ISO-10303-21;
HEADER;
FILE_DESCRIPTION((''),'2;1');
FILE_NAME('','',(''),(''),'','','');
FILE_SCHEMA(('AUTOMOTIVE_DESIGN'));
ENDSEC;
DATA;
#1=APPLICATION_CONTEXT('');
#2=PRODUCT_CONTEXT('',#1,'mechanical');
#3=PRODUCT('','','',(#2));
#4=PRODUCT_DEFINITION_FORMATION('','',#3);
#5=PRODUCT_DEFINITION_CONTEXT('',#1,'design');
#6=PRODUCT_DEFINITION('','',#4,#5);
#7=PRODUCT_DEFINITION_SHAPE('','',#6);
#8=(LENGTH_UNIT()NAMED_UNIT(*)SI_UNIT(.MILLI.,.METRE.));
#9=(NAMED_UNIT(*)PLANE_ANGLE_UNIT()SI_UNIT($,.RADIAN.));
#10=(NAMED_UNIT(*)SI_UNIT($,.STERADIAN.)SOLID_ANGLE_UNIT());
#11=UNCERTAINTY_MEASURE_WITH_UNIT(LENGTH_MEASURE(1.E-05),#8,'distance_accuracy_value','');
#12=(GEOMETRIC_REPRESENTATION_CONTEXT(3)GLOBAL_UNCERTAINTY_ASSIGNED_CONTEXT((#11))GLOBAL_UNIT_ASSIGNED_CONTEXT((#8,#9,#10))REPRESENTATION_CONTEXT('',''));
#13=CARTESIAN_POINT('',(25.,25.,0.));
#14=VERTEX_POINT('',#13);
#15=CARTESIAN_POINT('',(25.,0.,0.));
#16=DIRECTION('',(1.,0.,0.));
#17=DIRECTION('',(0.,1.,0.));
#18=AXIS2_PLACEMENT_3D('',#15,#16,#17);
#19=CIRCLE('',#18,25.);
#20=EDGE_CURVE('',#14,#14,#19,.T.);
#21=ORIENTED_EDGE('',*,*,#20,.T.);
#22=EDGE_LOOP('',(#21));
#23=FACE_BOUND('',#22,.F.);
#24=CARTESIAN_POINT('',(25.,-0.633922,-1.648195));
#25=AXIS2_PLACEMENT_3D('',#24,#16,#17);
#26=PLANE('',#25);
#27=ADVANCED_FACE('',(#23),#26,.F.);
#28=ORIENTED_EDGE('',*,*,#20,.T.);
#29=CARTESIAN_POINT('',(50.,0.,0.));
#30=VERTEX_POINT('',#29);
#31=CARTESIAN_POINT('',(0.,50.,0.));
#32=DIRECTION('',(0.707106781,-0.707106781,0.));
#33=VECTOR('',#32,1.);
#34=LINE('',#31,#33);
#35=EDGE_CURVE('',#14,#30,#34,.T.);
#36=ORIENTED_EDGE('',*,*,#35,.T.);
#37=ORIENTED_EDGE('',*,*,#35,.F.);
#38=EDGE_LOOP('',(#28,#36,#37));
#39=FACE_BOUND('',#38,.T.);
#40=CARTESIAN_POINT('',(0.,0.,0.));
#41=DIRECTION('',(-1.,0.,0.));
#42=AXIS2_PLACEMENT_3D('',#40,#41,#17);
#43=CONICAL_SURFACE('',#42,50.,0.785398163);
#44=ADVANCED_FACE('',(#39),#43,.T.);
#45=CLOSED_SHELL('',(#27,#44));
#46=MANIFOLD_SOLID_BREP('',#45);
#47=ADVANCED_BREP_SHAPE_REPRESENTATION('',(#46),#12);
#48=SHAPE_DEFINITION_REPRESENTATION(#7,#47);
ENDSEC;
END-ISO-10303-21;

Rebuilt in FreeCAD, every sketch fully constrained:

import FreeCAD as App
import Part
import Sketcher
Q = App.Units.Quantity


def add_polygon(sketch, points):
    """Adds a closed chain of lines whose ends are joined by coincident constraints."""
    first, n = sketch.GeometryCount, len(points)
    for a, b in zip(points, points[1:] + points[:1]):
        sketch.addGeometry(Part.LineSegment(App.Vector(*a, 0), App.Vector(*b, 0)), False)
    for i in range(n):
        sketch.addConstraint(Sketcher.Constraint("Coincident", first + i, 2, first + (i + 1) % n, 1))

doc = App.newDocument("Part")
body = doc.addObject("PartDesign::Body", "Body")

sketch1 = body.newObject("Sketcher::SketchObject", "Sketch")
sketch1.AttachmentSupport = (doc.getObject("YZ_Plane"), [""])
sketch1.MapMode = "FlatFace"
add_polygon(sketch1, [(-71.760032, 58.320873), (-71.760032, -61.617263), (70.492188, -61.617263), (70.492188, 58.320873)])
sketch1.addConstraint(Sketcher.Constraint("Vertical", 0))
sketch1.addConstraint(Sketcher.Constraint("Horizontal", 1))
sketch1.addConstraint(Sketcher.Constraint("Vertical", 2))
sketch1.addConstraint(Sketcher.Constraint("Horizontal", 3))
sketch1.addConstraint(Sketcher.Constraint("DistanceX", 1, 1, 1, 2, Q("142.252221 mm")))
sketch1.addConstraint(Sketcher.Constraint("DistanceY", 0, 2, 0, 1, Q("119.938137 mm")))
sketch1.addConstraint(Sketcher.Constraint("DistanceX", -1, 1, 1, 2, Q("70.492188 mm")))
sketch1.addConstraint(Sketcher.Constraint("DistanceY", 0, 2, -1, 1, Q("61.617263 mm")))
pad1 = body.newObject("PartDesign::Pad", "Pad")
pad1.Profile = sketch1
pad1.Length = 25
body2 = doc.addObject("PartDesign::Body", "Body001")

sketch2 = body2.newObject("Sketcher::SketchObject", "Sketch001")
sketch2.AttachmentSupport = (doc.getObject("XY_Plane001"), [""])
sketch2.MapMode = "FlatFace"
add_polygon(sketch2, [(0, 50), (0, 0), (50, 0)])
sketch2.addConstraint(Sketcher.Constraint("Vertical", 0))
sketch2.addConstraint(Sketcher.Constraint("Horizontal", 1))
sketch2.addConstraint(Sketcher.Constraint("Coincident", 0, 2, -1, 1))
sketch2.addConstraint(Sketcher.Constraint("Equal", 1, 0))
sketch2.addConstraint(Sketcher.Constraint("DistanceX", 1, 1, 1, 2, Q("50 mm")))
revolution = body2.newObject("PartDesign::Revolution", "Revolution")
revolution.Profile = sketch2
revolution.ReferenceAxis = (sketch2, ["H_Axis"])
revolution.Angle = 360
doc.recompute()

boolean = body2.newObject("PartDesign::Boolean", "Boolean")
boolean.Type = "Cut"
boolean.addObjects([body])

doc.recompute()
